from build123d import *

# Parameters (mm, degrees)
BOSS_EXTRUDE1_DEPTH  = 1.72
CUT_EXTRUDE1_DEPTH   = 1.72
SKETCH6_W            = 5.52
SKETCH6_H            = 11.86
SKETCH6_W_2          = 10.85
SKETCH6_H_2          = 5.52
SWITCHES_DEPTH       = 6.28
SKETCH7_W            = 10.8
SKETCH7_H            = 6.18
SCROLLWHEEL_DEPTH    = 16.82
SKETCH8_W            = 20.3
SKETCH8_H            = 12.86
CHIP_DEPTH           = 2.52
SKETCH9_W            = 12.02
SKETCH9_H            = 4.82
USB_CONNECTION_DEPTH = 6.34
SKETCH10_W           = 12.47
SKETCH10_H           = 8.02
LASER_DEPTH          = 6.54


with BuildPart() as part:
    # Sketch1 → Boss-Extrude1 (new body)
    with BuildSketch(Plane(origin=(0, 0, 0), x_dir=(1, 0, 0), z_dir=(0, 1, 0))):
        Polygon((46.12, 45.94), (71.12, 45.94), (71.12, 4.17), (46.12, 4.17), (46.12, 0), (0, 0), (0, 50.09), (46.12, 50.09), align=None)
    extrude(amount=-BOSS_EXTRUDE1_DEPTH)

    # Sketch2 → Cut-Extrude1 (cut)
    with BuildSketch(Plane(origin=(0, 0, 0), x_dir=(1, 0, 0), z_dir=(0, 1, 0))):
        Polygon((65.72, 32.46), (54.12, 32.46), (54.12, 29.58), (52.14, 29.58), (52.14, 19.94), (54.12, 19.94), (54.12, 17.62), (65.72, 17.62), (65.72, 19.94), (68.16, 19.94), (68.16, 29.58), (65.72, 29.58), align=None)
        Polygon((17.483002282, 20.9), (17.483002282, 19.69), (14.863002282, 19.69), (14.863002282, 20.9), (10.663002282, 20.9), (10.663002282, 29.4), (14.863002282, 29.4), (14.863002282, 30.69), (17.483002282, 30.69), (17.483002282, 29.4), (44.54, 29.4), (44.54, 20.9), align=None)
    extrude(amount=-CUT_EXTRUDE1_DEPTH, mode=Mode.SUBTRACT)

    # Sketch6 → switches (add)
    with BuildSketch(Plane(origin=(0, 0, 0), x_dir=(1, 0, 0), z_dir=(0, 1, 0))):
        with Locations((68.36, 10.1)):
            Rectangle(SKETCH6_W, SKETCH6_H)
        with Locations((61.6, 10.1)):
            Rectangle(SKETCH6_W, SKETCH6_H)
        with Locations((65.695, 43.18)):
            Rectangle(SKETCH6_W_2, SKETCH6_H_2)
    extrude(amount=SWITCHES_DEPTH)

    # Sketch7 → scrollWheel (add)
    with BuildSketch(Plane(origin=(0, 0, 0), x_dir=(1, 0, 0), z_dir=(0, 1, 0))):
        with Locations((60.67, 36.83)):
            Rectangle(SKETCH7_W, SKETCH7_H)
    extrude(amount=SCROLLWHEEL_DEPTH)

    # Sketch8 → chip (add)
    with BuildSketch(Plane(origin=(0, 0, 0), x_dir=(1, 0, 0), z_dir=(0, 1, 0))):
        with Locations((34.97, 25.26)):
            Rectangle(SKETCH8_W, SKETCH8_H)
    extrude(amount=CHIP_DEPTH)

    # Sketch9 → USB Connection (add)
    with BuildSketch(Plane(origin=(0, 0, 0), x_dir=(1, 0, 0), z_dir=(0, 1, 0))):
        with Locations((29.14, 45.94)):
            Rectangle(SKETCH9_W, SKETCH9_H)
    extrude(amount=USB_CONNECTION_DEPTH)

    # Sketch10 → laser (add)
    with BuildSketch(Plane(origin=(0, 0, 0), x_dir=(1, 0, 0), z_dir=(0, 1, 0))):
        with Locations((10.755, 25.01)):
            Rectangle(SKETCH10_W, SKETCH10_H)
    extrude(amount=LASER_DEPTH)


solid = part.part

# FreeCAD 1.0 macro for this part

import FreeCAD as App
import Part
import Sketcher
from FreeCAD import Vector

doc = App.newDocument("Part")
params = doc.addObject("Spreadsheet::Sheet", "Params")
for row, (alias, value) in enumerate([
    ("sketch1_width", "25 mm"),
    ("sketch1_width2", "46.12 mm"),
    ("sketch1_height", "4.15 mm"),
    ("sketch1_height2", "50.09 mm"),
    ("sketch1_height3", "4.17 mm"),
    ("pad1_length", "1.72 mm"),
    ("sketch2_width", "11.6 mm"),
    ("sketch2_width2", "4.2 mm"),
    ("sketch2_height", "8.5 mm"),
    ("sketch2_width3", "1.98 mm"),
    ("sketch2_width4", "2.44 mm"),
    ("pocket1_length", "1.72 mm"),
    ("sketch3_width", "5.52 mm"),
    ("sketch3_width2", "10.85 mm"),
    ("sketch3_height", "11.86 mm"),
    ("pad2_length", "6.28 mm"),
    ("sketch4_width", "10.8 mm"),
    ("sketch4_height", "6.18 mm"),
    ("pad3_length", "16.82 mm"),
    ("sketch5_width", "20.3 mm"),
    ("sketch5_height", "12.86 mm"),
    ("pad4_length", "2.52 mm"),
    ("sketch6_width", "12.02 mm"),
    ("sketch6_height", "4.82 mm"),
    ("pad5_length", "6.34 mm"),
    ("sketch7_width", "12.47 mm"),
    ("sketch7_height", "8.02 mm"),
    ("pad6_length", "6.54 mm"),
], start=1):
    params.set(f"A{row}", alias)
    params.set(f"B{row}", "=" + value)
    params.setAlias(f"B{row}", alias)

body = doc.addObject("PartDesign::Body", "Body")

sketch1 = doc.addObject("Sketcher::SketchObject", "Sketch")
body.addObject(sketch1)
sketch1.AttachmentSupport = (doc.XZ_Plane, [""])
sketch1.MapMode = "FlatFace"
sketch1.addGeometry([
    Part.LineSegment(Vector(71.1, -45.9, 0), Vector(46.1, -45.9, 0)),
    Part.LineSegment(Vector(46.1, -45.9, 0), Vector(46.1, -50.1, 0)),
    Part.LineSegment(Vector(46.1, -50.1, 0), Vector(0, -50.1, 0)),
    Part.LineSegment(Vector(0, -50.1, 0), Vector(0, 0, 0)),
    Part.LineSegment(Vector(0, 0, 0), Vector(46.1, 0, 0)),
    Part.LineSegment(Vector(46.1, 0, 0), Vector(46.1, -4.2, 0)),
    Part.LineSegment(Vector(46.1, -4.2, 0), Vector(71.1, -4.2, 0)),
    Part.LineSegment(Vector(71.1, -4.2, 0), Vector(71.1, -45.9, 0)),
], False)
sketch1.addConstraint([
    Sketcher.Constraint("Coincident", 0, 2, 1, 1),
    Sketcher.Constraint("Coincident", 1, 2, 2, 1),
    Sketcher.Constraint("Coincident", 2, 2, 3, 1),
    Sketcher.Constraint("Coincident", 3, 2, 4, 1),
    Sketcher.Constraint("Coincident", 4, 2, 5, 1),
    Sketcher.Constraint("Coincident", 5, 2, 6, 1),
    Sketcher.Constraint("Coincident", 6, 2, 7, 1),
    Sketcher.Constraint("Coincident", 7, 2, 0, 1),
    Sketcher.Constraint("Horizontal", 0),
    Sketcher.Constraint("Vertical", 1),
    Sketcher.Constraint("Horizontal", 2),
    Sketcher.Constraint("Vertical", 3),
    Sketcher.Constraint("Horizontal", 4),
    Sketcher.Constraint("Vertical", 5),
    Sketcher.Constraint("Horizontal", 6),
    Sketcher.Constraint("Vertical", 7),
    Sketcher.Constraint("Coincident", 3, 2, -1, 1),
    Sketcher.Constraint("Vertical", 1, 2, 4, 2),
    Sketcher.Constraint("DistanceX", 0, 2, 0, 1, 25.0),
    Sketcher.Constraint("DistanceX", 2, 2, 2, 1, 46.12),
    Sketcher.Constraint("DistanceY", 1, 2, 1, 1, 4.15),
    Sketcher.Constraint("DistanceY", 3, 1, 3, 2, 50.09),
    Sketcher.Constraint("DistanceY", 5, 2, 5, 1, 4.17),
])
sketch1.setExpression("Constraints[18]", "Params.sketch1_width")
sketch1.setExpression("Constraints[19]", "Params.sketch1_width2")
sketch1.setExpression("Constraints[20]", "Params.sketch1_height")
sketch1.setExpression("Constraints[21]", "Params.sketch1_height2")
sketch1.setExpression("Constraints[22]", "Params.sketch1_height3")
pad1 = doc.addObject("PartDesign::Pad", "Pad")
body.addObject(pad1)
pad1.Profile = sketch1
pad1.setExpression("Length", "Params.pad1_length")

sketch2 = doc.addObject("Sketcher::SketchObject", "Sketch001")
body.addObject(sketch2)
sketch2.AttachmentSupport = (doc.XZ_Plane, [""])
sketch2.MapMode = "FlatFace"
sketch2.addGeometry([
    Part.LineSegment(Vector(65.7, -32.5, 0), Vector(54.1, -32.5, 0)),
    Part.LineSegment(Vector(54.1, -32.5, 0), Vector(54.1, -29.6, 0)),
    Part.LineSegment(Vector(54.1, -29.6, 0), Vector(52.1, -29.6, 0)),
    Part.LineSegment(Vector(52.1, -29.6, 0), Vector(52.1, -19.9, 0)),
    Part.LineSegment(Vector(52.1, -19.9, 0), Vector(54.1, -19.9, 0)),
    Part.LineSegment(Vector(54.1, -19.9, 0), Vector(54.1, -17.6, 0)),
    Part.LineSegment(Vector(54.1, -17.6, 0), Vector(65.7, -17.6, 0)),
    Part.LineSegment(Vector(65.7, -17.6, 0), Vector(65.7, -19.9, 0)),
    Part.LineSegment(Vector(65.7, -19.9, 0), Vector(68.2, -19.9, 0)),
    Part.LineSegment(Vector(68.2, -19.9, 0), Vector(68.2, -29.6, 0)),
    Part.LineSegment(Vector(68.2, -29.6, 0), Vector(65.7, -29.6, 0)),
    Part.LineSegment(Vector(65.7, -29.6, 0), Vector(65.7, -32.5, 0)),
    Part.LineSegment(Vector(17.5, -19.7, 0), Vector(17.5, -20.9, 0)),
    Part.LineSegment(Vector(17.5, -20.9, 0), Vector(44.5, -20.9, 0)),
    Part.LineSegment(Vector(44.5, -20.9, 0), Vector(44.5, -29.4, 0)),
    Part.LineSegment(Vector(44.5, -29.4, 0), Vector(17.5, -29.4, 0)),
    Part.LineSegment(Vector(17.5, -29.4, 0), Vector(17.5, -30.7, 0)),
    Part.LineSegment(Vector(17.5, -30.7, 0), Vector(14.9, -30.7, 0)),
    Part.LineSegment(Vector(14.9, -30.7, 0), Vector(14.9, -29.4, 0)),
    Part.LineSegment(Vector(14.9, -29.4, 0), Vector(10.7, -29.4, 0)),
    Part.LineSegment(Vector(10.7, -29.4, 0), Vector(10.7, -20.9, 0)),
    Part.LineSegment(Vector(10.7, -20.9, 0), Vector(14.9, -20.9, 0)),
    Part.LineSegment(Vector(14.9, -20.9, 0), Vector(14.9, -19.7, 0)),
    Part.LineSegment(Vector(14.9, -19.7, 0), Vector(17.5, -19.7, 0)),
], False)
sketch2.addConstraint([
    Sketcher.Constraint("Coincident", 0, 2, 1, 1),
    Sketcher.Constraint("Coincident", 1, 2, 2, 1),
    Sketcher.Constraint("Coincident", 2, 2, 3, 1),
    Sketcher.Constraint("Coincident", 3, 2, 4, 1),
    Sketcher.Constraint("Coincident", 4, 2, 5, 1),
    Sketcher.Constraint("Coincident", 5, 2, 6, 1),
    Sketcher.Constraint("Coincident", 6, 2, 7, 1),
    Sketcher.Constraint("Coincident", 7, 2, 8, 1),
    Sketcher.Constraint("Coincident", 8, 2, 9, 1),
    Sketcher.Constraint("Coincident", 9, 2, 10, 1),
    Sketcher.Constraint("Coincident", 10, 2, 11, 1),
    Sketcher.Constraint("Coincident", 11, 2, 0, 1),
    Sketcher.Constraint("Coincident", 12, 2, 13, 1),
    Sketcher.Constraint("Coincident", 13, 2, 14, 1),
    Sketcher.Constraint("Coincident", 14, 2, 15, 1),
    Sketcher.Constraint("Coincident", 15, 2, 16, 1),
    Sketcher.Constraint("Coincident", 16, 2, 17, 1),
    Sketcher.Constraint("Coincident", 17, 2, 18, 1),
    Sketcher.Constraint("Coincident", 18, 2, 19, 1),
    Sketcher.Constraint("Coincident", 19, 2, 20, 1),
    Sketcher.Constraint("Coincident", 20, 2, 21, 1),
    Sketcher.Constraint("Coincident", 21, 2, 22, 1),
    Sketcher.Constraint("Coincident", 22, 2, 23, 1),
    Sketcher.Constraint("Coincident", 23, 2, 12, 1),
    Sketcher.Constraint("Horizontal", 0),
    Sketcher.Constraint("Vertical", 1),
    Sketcher.Constraint("Horizontal", 2),
    Sketcher.Constraint("Vertical", 3),
    Sketcher.Constraint("Horizontal", 4),
    Sketcher.Constraint("Vertical", 5),
    Sketcher.Constraint("Horizontal", 6),
    Sketcher.Constraint("Vertical", 7),
    Sketcher.Constraint("Horizontal", 8),
    Sketcher.Constraint("Vertical", 9),
    Sketcher.Constraint("Horizontal", 10),
    Sketcher.Constraint("Vertical", 11),
    Sketcher.Constraint("Vertical", 12),
    Sketcher.Constraint("Horizontal", 13),
    Sketcher.Constraint("Vertical", 14),
    Sketcher.Constraint("Horizontal", 15),
    Sketcher.Constraint("Vertical", 16),
    Sketcher.Constraint("Horizontal", 17),
    Sketcher.Constraint("Vertical", 18),
    Sketcher.Constraint("Horizontal", 19),
    Sketcher.Constraint("Vertical", 20),
    Sketcher.Constraint("Horizontal", 21),
    Sketcher.Constraint("Vertical", 22),
    Sketcher.Constraint("Horizontal", 23),
    Sketcher.Constraint("Horizontal", 4, 2, 7, 2),
    Sketcher.Constraint("Horizontal", 2, 2, 9, 2),
    Sketcher.Constraint("Horizontal", 15, 2, 18, 2),
    Sketcher.Constraint("Horizontal", 13, 2, 20, 2),
    Sketcher.Constraint("Vertical", 1, 2, 4, 2),
    Sketcher.Constraint("Vertical", 7, 2, 10, 2),
    Sketcher.Constraint("Vertical", 12, 2, 15, 2),
    Sketcher.Constraint("Vertical", 18, 2, 21, 2),
    Sketcher.Constraint("DistanceX", 0, 2, 0, 1, 11.6),
    Sketcher.Constraint("DistanceX", 19, 2, 19, 1, 4.2),
    Sketcher.Constraint("DistanceY", 14, 2, 14, 1, 8.5),
    Sketcher.Constraint("DistanceX", 2, 2, 2, 1, 1.98),
    Sketcher.Constraint("DistanceX", 8, 1, 8, 2, 2.44),
    Sketcher.Constraint("DistanceX", 17, 2, 17, 1, 2.62),
    Sketcher.Constraint("DistanceY", 1, 1, 1, 2, 2.88),
    Sketcher.Constraint("DistanceY", 3, 1, 3, 2, 9.64),
    Sketcher.Constraint("DistanceY", 5, 1, 5, 2, 2.32),
    Sketcher.Constraint("DistanceY", 12, 2, 12, 1, 1.21),
    Sketcher.Constraint("DistanceY", 16, 2, 16, 1, 1.29),
    Sketcher.Constraint("DistanceY", 12, 2, -1, 1, 20.9),
    Sketcher.Constraint("DistanceX", 13, 2, 3, 2, 7.6),
    Sketcher.Constraint("DistanceX", -1, 1, 0, 2, 54.12),
    Sketcher.Constraint("DistanceY", 0, 2, -1, 1, 32.46),
    Sketcher.Constraint("DistanceX", 13, 1, 13, 2, 27.056998),
])
sketch2.setExpression("Constraints[56]", "Params.sketch2_width")
sketch2.setExpression("Constraints[57]", "Params.sketch2_width2")
sketch2.setExpression("Constraints[58]", "Params.sketch2_height")
sketch2.setExpression("Constraints[59]", "Params.sketch2_width3")
sketch2.setExpression("Constraints[60]", "Params.sketch2_width4")
pocket1 = doc.addObject("PartDesign::Pocket", "Pocket")
body.addObject(pocket1)
pocket1.Profile = sketch2
pocket1.setExpression("Length", "Params.pocket1_length")
pocket1.Reversed = True

sketch3 = doc.addObject("Sketcher::SketchObject", "Sketch002")
body.addObject(sketch3)
sketch3.AttachmentSupport = (doc.XZ_Plane, [""])
sketch3.MapMode = "FlatFace"
sketch3.addGeometry([
    Part.LineSegment(Vector(66, -16, 0), Vector(66, -4, 0)),
    Part.LineSegment(Vector(66, -4, 0), Vector(71, -4, 0)),
    Part.LineSegment(Vector(71, -4, 0), Vector(71, -16, 0)),
    Part.LineSegment(Vector(71, -16, 0), Vector(66, -16, 0)),
    Part.LineSegment(Vector(59, -16, 0), Vector(59, -4, 0)),
    Part.LineSegment(Vector(59, -4, 0), Vector(64, -4, 0)),
    Part.LineSegment(Vector(64, -4, 0), Vector(64, -16, 0)),
    Part.LineSegment(Vector(64, -16, 0), Vector(59, -16, 0)),
    Part.LineSegment(Vector(60, -46, 0), Vector(60, -40, 0)),
    Part.LineSegment(Vector(60, -40, 0), Vector(71, -40, 0)),
    Part.LineSegment(Vector(71, -40, 0), Vector(71, -46, 0)),
    Part.LineSegment(Vector(71, -46, 0), Vector(60, -46, 0)),
], False)
sketch3.addConstraint([
    Sketcher.Constraint("Coincident", 0, 2, 1, 1),
    Sketcher.Constraint("Coincident", 1, 2, 2, 1),
    Sketcher.Constraint("Coincident", 2, 2, 3, 1),
    Sketcher.Constraint("Coincident", 3, 2, 0, 1),
    Sketcher.Constraint("Coincident", 4, 2, 5, 1),
    Sketcher.Constraint("Coincident", 5, 2, 6, 1),
    Sketcher.Constraint("Coincident", 6, 2, 7, 1),
    Sketcher.Constraint("Coincident", 7, 2, 4, 1),
    Sketcher.Constraint("Coincident", 8, 2, 9, 1),
    Sketcher.Constraint("Coincident", 9, 2, 10, 1),
    Sketcher.Constraint("Coincident", 10, 2, 11, 1),
    Sketcher.Constraint("Coincident", 11, 2, 8, 1),
    Sketcher.Constraint("Vertical", 0),
    Sketcher.Constraint("Horizontal", 1),
    Sketcher.Constraint("Vertical", 2),
    Sketcher.Constraint("Horizontal", 3),
    Sketcher.Constraint("Vertical", 4),
    Sketcher.Constraint("Horizontal", 5),
    Sketcher.Constraint("Vertical", 6),
    Sketcher.Constraint("Horizontal", 7),
    Sketcher.Constraint("Vertical", 8),
    Sketcher.Constraint("Horizontal", 9),
    Sketcher.Constraint("Vertical", 10),
    Sketcher.Constraint("Horizontal", 11),
    Sketcher.Constraint("Horizontal", 1, 2, 4, 2),
    Sketcher.Constraint("Horizontal", 3, 2, 6, 2),
    Sketcher.Constraint("Vertical", 2, 2, 9, 2),
    Sketcher.Constraint("Equal", 3, 5),
    Sketcher.Constraint("Equal", 7, 8),
    Sketcher.Constraint("DistanceX", 1, 1, 1, 2, 5.52),
    Sketcher.Constraint("DistanceX", 9, 1, 9, 2, 10.85),
    Sketcher.Constraint("DistanceY", 0, 1, 0, 2, 11.86),
    Sketcher.Constraint("DistanceX", -1, 1, 0, 2, 65.6),
    Sketcher.Constraint("DistanceY", 0, 2, -1, 1, 4.17),
    Sketcher.Constraint("DistanceX", -1, 1, 4, 2, 58.84),
    Sketcher.Constraint("DistanceY", 8, 2, -1, 1, 40.42),
])
sketch3.setExpression("Constraints[29]", "Params.sketch3_width")
sketch3.setExpression("Constraints[30]", "Params.sketch3_width2")
sketch3.setExpression("Constraints[31]", "Params.sketch3_height")
pad2 = doc.addObject("PartDesign::Pad", "Pad001")
body.addObject(pad2)
pad2.Profile = sketch3
pad2.setExpression("Length", "Params.pad2_length")
pad2.Reversed = True

sketch4 = doc.addObject("Sketcher::SketchObject", "Sketch003")
body.addObject(sketch4)
sketch4.AttachmentSupport = (doc.XZ_Plane, [""])
sketch4.MapMode = "FlatFace"
sketch4.addGeometry([
    Part.LineSegment(Vector(55, -40, 0), Vector(55, -34, 0)),
    Part.LineSegment(Vector(55, -34, 0), Vector(66, -34, 0)),
    Part.LineSegment(Vector(66, -34, 0), Vector(66, -40, 0)),
    Part.LineSegment(Vector(66, -40, 0), Vector(55, -40, 0)),
], False)
sketch4.addConstraint([
    Sketcher.Constraint("Coincident", 0, 2, 1, 1),
    Sketcher.Constraint("Coincident", 1, 2, 2, 1),
    Sketcher.Constraint("Coincident", 2, 2, 3, 1),
    Sketcher.Constraint("Coincident", 3, 2, 0, 1),
    Sketcher.Constraint("Vertical", 0),
    Sketcher.Constraint("Horizontal", 1),
    Sketcher.Constraint("Vertical", 2),
    Sketcher.Constraint("Horizontal", 3),
    Sketcher.Constraint("DistanceX", 1, 1, 1, 2, 10.8),
    Sketcher.Constraint("DistanceY", 0, 1, 0, 2, 6.18),
    Sketcher.Constraint("DistanceX", -1, 1, 0, 2, 55.27),
    Sketcher.Constraint("DistanceY", 0, 2, -1, 1, 33.74),
])
sketch4.setExpression("Constraints[8]", "Params.sketch4_width")
sketch4.setExpression("Constraints[9]", "Params.sketch4_height")
pad3 = doc.addObject("PartDesign::Pad", "Pad002")
body.addObject(pad3)
pad3.Profile = sketch4
pad3.setExpression("Length", "Params.pad3_length")
pad3.Reversed = True

sketch5 = doc.addObject("Sketcher::SketchObject", "Sketch004")
body.addObject(sketch5)
sketch5.AttachmentSupport = (doc.XZ_Plane, [""])
sketch5.MapMode = "FlatFace"
sketch5.addGeometry([
    Part.LineSegment(Vector(25, -32, 0), Vector(25, -19, 0)),
    Part.LineSegment(Vector(25, -19, 0), Vector(45, -19, 0)),
    Part.LineSegment(Vector(45, -19, 0), Vector(45, -32, 0)),
    Part.LineSegment(Vector(45, -32, 0), Vector(25, -32, 0)),
], False)
sketch5.addConstraint([
    Sketcher.Constraint("Coincident", 0, 2, 1, 1),
    Sketcher.Constraint("Coincident", 1, 2, 2, 1),
    Sketcher.Constraint("Coincident", 2, 2, 3, 1),
    Sketcher.Constraint("Coincident", 3, 2, 0, 1),
    Sketcher.Constraint("Vertical", 0),
    Sketcher.Constraint("Horizontal", 1),
    Sketcher.Constraint("Vertical", 2),
    Sketcher.Constraint("Horizontal", 3),
    Sketcher.Constraint("DistanceX", 1, 1, 1, 2, 20.3),
    Sketcher.Constraint("DistanceY", 0, 1, 0, 2, 12.86),
    Sketcher.Constraint("DistanceX", -1, 1, 0, 2, 24.82),
    Sketcher.Constraint("DistanceY", 0, 2, -1, 1, 18.83),
])
sketch5.setExpression("Constraints[8]", "Params.sketch5_width")
sketch5.setExpression("Constraints[9]", "Params.sketch5_height")
pad4 = doc.addObject("PartDesign::Pad", "Pad003")
body.addObject(pad4)
pad4.Profile = sketch5
pad4.setExpression("Length", "Params.pad4_length")
pad4.Reversed = True

sketch6 = doc.addObject("Sketcher::SketchObject", "Sketch005")
body.addObject(sketch6)
sketch6.AttachmentSupport = (doc.XZ_Plane, [""])
sketch6.MapMode = "FlatFace"
sketch6.addGeometry([
    Part.LineSegment(Vector(23.1, -48.4, 0), Vector(23.1, -43.5, 0)),
    Part.LineSegment(Vector(23.1, -43.5, 0), Vector(35.1, -43.5, 0)),
    Part.LineSegment(Vector(35.1, -43.5, 0), Vector(35.1, -48.4, 0)),
    Part.LineSegment(Vector(35.1, -48.4, 0), Vector(23.1, -48.4, 0)),
], False)
sketch6.addConstraint([
    Sketcher.Constraint("Coincident", 0, 2, 1, 1),
    Sketcher.Constraint("Coincident", 1, 2, 2, 1),
    Sketcher.Constraint("Coincident", 2, 2, 3, 1),
    Sketcher.Constraint("Coincident", 3, 2, 0, 1),
    Sketcher.Constraint("Vertical", 0),
    Sketcher.Constraint("Horizontal", 1),
    Sketcher.Constraint("Vertical", 2),
    Sketcher.Constraint("Horizontal", 3),
    Sketcher.Constraint("DistanceX", 1, 1, 1, 2, 12.02),
    Sketcher.Constraint("DistanceY", 0, 1, 0, 2, 4.82),
    Sketcher.Constraint("DistanceX", -1, 1, 0, 2, 23.13),
    Sketcher.Constraint("DistanceY", 0, 2, -1, 1, 43.53),
])
sketch6.setExpression("Constraints[8]", "Params.sketch6_width")
sketch6.setExpression("Constraints[9]", "Params.sketch6_height")
pad5 = doc.addObject("PartDesign::Pad", "Pad004")
body.addObject(pad5)
pad5.Profile = sketch6
pad5.setExpression("Length", "Params.pad5_length")
pad5.Reversed = True

sketch7 = doc.addObject("Sketcher::SketchObject", "Sketch006")
body.addObject(sketch7)
sketch7.AttachmentSupport = (doc.XZ_Plane, [""])
sketch7.MapMode = "FlatFace"
sketch7.addGeometry([
    Part.LineSegment(Vector(5, -29, 0), Vector(5, -21, 0)),
    Part.LineSegment(Vector(5, -21, 0), Vector(17, -21, 0)),
    Part.LineSegment(Vector(17, -21, 0), Vector(17, -29, 0)),
    Part.LineSegment(Vector(17, -29, 0), Vector(5, -29, 0)),
], False)
sketch7.addConstraint([
    Sketcher.Constraint("Coincident", 0, 2, 1, 1),
    Sketcher.Constraint("Coincident", 1, 2, 2, 1),
    Sketcher.Constraint("Coincident", 2, 2, 3, 1),
    Sketcher.Constraint("Coincident", 3, 2, 0, 1),
    Sketcher.Constraint("Vertical", 0),
    Sketcher.Constraint("Horizontal", 1),
    Sketcher.Constraint("Vertical", 2),
    Sketcher.Constraint("Horizontal", 3),
    Sketcher.Constraint("DistanceY", 0, 2, -1, 1, 21.0),
    Sketcher.Constraint("DistanceX", 1, 1, 1, 2, 12.47),
    Sketcher.Constraint("DistanceY", 0, 1, 0, 2, 8.02),
    Sketcher.Constraint("DistanceX", -1, 1, 0, 2, 4.52),
])
sketch7.setExpression("Constraints[9]", "Params.sketch7_width")
sketch7.setExpression("Constraints[10]", "Params.sketch7_height")
pad6 = doc.addObject("PartDesign::Pad", "Pad005")
body.addObject(pad6)
pad6.Profile = sketch7
pad6.setExpression("Length", "Params.pad6_length")
pad6.Reversed = True

doc.recompute()
